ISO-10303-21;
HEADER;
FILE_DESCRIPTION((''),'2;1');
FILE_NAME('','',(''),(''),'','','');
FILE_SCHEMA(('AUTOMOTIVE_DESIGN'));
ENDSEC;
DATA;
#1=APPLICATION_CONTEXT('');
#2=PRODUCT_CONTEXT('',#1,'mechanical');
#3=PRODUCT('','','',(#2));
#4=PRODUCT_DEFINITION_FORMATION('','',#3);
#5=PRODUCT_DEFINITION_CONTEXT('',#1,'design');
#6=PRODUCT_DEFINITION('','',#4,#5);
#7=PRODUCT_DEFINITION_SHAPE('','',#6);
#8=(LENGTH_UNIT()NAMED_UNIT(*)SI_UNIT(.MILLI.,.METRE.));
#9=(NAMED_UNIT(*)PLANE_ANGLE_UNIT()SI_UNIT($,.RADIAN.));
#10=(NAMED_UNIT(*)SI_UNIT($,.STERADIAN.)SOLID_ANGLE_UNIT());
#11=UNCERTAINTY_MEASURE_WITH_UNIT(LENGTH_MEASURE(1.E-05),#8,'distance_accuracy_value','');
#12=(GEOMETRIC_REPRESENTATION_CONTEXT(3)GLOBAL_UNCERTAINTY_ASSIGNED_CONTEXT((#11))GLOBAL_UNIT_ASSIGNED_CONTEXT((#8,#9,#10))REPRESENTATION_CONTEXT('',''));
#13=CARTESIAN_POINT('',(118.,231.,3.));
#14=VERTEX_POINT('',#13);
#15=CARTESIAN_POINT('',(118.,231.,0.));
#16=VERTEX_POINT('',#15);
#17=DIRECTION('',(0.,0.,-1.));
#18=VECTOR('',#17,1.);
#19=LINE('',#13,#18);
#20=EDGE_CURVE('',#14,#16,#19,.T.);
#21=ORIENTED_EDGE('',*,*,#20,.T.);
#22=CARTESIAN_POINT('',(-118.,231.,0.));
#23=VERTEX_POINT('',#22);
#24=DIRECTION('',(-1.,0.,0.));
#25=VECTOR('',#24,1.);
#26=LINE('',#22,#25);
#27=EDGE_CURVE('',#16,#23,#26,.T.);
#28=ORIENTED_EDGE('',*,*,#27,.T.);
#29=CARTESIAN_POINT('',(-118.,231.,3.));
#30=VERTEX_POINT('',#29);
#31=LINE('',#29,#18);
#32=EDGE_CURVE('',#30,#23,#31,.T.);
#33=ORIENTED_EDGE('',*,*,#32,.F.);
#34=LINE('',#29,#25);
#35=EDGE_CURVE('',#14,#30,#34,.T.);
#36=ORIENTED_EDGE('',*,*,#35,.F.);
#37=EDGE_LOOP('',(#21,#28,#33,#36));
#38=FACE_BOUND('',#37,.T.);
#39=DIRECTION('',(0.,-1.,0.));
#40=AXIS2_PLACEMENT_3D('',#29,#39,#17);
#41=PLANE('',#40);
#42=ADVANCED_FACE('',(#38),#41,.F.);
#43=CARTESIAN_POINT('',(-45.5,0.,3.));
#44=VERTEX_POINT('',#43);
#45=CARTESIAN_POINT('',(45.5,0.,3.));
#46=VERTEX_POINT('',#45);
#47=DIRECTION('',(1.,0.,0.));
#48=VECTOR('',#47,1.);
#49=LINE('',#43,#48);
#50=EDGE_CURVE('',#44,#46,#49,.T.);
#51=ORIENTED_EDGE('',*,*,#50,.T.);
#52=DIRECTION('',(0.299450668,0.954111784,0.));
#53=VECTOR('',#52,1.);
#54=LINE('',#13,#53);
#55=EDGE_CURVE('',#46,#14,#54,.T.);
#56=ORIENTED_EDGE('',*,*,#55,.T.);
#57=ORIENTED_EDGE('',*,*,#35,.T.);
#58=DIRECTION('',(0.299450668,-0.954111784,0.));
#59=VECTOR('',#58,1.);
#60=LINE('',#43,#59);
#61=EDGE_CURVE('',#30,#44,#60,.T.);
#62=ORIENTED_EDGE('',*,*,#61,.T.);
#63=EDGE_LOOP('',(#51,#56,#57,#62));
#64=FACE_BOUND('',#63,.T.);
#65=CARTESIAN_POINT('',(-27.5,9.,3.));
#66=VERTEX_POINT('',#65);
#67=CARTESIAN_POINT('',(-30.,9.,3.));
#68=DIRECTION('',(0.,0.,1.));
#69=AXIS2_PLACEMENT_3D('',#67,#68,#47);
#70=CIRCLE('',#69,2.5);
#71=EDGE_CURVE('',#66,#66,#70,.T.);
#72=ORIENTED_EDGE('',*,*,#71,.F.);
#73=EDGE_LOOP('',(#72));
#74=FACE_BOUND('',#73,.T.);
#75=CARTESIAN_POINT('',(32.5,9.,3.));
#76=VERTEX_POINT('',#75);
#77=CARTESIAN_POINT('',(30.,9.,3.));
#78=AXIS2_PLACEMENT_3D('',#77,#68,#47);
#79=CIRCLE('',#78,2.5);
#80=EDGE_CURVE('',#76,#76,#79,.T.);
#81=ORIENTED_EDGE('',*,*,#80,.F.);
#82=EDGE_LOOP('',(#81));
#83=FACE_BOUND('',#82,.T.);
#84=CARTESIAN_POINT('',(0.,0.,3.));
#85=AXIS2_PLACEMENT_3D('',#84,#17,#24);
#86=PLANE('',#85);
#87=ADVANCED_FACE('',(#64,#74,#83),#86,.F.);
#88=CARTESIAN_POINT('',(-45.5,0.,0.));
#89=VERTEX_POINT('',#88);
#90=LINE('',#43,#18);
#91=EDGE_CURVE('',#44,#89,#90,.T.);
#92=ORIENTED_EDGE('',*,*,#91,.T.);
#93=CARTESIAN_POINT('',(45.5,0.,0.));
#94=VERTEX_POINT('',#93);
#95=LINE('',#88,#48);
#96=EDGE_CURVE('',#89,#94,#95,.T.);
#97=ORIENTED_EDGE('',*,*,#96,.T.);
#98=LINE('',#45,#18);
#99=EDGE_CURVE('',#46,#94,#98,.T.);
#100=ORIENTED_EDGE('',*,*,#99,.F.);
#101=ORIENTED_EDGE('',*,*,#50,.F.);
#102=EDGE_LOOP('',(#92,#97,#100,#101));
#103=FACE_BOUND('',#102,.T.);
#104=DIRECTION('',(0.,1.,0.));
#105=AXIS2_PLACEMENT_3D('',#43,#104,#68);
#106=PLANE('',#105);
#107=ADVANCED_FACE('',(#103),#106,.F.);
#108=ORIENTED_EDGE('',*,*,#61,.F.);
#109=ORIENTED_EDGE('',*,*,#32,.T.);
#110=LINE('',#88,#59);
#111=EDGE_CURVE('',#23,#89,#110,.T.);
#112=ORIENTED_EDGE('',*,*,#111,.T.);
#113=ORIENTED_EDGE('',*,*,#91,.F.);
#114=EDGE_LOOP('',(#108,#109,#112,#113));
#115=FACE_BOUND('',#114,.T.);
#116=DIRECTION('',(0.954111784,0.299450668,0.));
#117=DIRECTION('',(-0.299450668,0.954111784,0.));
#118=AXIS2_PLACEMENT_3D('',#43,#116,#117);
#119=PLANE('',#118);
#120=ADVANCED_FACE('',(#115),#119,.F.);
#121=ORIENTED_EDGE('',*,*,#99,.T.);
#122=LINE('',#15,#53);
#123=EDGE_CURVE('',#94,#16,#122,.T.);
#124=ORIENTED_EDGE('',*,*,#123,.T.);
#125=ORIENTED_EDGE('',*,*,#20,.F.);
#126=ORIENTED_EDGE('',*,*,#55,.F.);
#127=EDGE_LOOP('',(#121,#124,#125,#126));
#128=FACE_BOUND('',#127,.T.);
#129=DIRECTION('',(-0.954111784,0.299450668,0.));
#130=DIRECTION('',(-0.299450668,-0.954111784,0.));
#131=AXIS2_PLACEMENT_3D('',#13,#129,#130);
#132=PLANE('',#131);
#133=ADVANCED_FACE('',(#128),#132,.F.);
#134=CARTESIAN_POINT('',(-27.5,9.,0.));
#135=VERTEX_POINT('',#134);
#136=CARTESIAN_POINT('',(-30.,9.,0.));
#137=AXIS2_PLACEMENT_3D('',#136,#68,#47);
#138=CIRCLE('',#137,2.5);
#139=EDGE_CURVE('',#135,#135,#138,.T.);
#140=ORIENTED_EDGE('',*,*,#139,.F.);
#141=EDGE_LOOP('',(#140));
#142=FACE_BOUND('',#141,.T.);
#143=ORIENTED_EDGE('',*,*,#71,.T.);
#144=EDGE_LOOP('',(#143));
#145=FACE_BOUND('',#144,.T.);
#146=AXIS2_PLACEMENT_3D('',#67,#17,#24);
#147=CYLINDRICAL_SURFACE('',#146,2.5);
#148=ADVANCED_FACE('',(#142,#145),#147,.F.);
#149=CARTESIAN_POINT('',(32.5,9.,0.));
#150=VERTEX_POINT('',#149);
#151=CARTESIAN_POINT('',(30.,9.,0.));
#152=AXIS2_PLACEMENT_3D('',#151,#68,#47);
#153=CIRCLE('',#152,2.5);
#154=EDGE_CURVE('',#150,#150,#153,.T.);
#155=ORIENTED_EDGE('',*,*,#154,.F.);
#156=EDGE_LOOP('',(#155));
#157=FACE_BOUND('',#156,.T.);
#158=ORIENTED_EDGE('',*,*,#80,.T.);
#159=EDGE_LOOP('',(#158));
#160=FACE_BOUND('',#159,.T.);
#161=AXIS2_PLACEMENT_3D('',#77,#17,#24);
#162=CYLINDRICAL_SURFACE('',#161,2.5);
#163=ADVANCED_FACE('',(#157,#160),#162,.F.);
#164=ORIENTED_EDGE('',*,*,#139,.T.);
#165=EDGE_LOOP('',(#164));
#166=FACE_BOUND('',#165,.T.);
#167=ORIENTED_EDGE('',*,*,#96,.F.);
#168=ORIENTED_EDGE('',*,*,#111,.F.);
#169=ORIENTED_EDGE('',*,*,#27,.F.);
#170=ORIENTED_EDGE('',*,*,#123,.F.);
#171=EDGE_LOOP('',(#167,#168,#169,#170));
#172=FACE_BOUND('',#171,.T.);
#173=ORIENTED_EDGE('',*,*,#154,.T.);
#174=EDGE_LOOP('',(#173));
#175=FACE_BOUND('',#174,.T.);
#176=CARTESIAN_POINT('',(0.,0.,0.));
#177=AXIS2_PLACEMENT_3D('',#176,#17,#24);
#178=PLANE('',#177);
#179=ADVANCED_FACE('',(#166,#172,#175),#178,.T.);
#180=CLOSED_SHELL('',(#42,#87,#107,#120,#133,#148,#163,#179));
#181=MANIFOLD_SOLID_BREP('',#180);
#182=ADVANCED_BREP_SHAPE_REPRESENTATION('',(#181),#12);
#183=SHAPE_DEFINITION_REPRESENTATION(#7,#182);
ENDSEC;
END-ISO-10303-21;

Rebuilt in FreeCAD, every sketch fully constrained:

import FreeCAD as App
import Part
import Sketcher
from FreeCAD import Vector
Q = App.Units.Quantity

doc = App.newDocument("Part")
body = doc.addObject("PartDesign::Body", "Body")

# Sketch on XY plane
sketch1 = body.newObject("Sketcher::SketchObject", "Sketch")
sketch1.AttachmentSupport = (doc.getObject("XY_Plane"), [""])
sketch1.MapMode = "FlatFace"
sketch1.addGeometry(Part.LineSegment(Vector(-118, 231, 0), Vector(-45.5, 0, 0)), False)
sketch1.addGeometry(Part.LineSegment(Vector(-45.5, 0, 0), Vector(45.5, 0, 0)), False)
sketch1.addGeometry(Part.LineSegment(Vector(45.5, 0, 0), Vector(118, 231, 0)), False)
sketch1.addGeometry(Part.LineSegment(Vector(118, 231, 0), Vector(-118, 231, 0)), False)
sketch1.addGeometry(Part.Circle(Vector(30, 9, 0), Vector(0, 0, 1), 2.5), False)
sketch1.addGeometry(Part.Circle(Vector(-30, 9, 0), Vector(0, 0, 1), 2.5), False)
sketch1.addConstraint(Sketcher.Constraint("Coincident", 0, 2, 1, 1))
sketch1.addConstraint(Sketcher.Constraint("Coincident", 1, 2, 2, 1))
sketch1.addConstraint(Sketcher.Constraint("Coincident", 2, 2, 3, 1))
sketch1.addConstraint(Sketcher.Constraint("Coincident", 3, 2, 0, 1))
sketch1.addConstraint(Sketcher.Constraint("Horizontal", 1))
sketch1.addConstraint(Sketcher.Constraint("Horizontal", 3))
sketch1.addConstraint(Sketcher.Constraint("Equal", 4, 5))
sketch1.addConstraint(Sketcher.Constraint("Symmetric", 0, 2, 1, 2, -1, 1))
sketch1.addConstraint(Sketcher.Constraint("Symmetric", 4, 3, 5, 3, -2))
sketch1.addConstraint(Sketcher.Constraint("Equal", 0, 2))
sketch1.addConstraint(Sketcher.Constraint("Diameter", 4, Q("5 mm")))
sketch1.addConstraint(Sketcher.Constraint("DistanceX", 1, 1, 1, 2, Q("91 mm")))
sketch1.addConstraint(Sketcher.Constraint("DistanceX", 3, 2, 3, 1, Q("236 mm")))
sketch1.addConstraint(Sketcher.Constraint("DistanceX", -1, 1, 4, 3, Q("30 mm")))
sketch1.addConstraint(Sketcher.Constraint("DistanceY", -1, 1, 4, 3, Q("9 mm")))
sketch1.addConstraint(Sketcher.Constraint("DistanceY", -1, 1, 2, 2, Q("231 mm")))
pad1 = body.newObject("PartDesign::Pad", "Pad")
pad1.Profile = sketch1
pad1.Length = 3

doc.recompute()
